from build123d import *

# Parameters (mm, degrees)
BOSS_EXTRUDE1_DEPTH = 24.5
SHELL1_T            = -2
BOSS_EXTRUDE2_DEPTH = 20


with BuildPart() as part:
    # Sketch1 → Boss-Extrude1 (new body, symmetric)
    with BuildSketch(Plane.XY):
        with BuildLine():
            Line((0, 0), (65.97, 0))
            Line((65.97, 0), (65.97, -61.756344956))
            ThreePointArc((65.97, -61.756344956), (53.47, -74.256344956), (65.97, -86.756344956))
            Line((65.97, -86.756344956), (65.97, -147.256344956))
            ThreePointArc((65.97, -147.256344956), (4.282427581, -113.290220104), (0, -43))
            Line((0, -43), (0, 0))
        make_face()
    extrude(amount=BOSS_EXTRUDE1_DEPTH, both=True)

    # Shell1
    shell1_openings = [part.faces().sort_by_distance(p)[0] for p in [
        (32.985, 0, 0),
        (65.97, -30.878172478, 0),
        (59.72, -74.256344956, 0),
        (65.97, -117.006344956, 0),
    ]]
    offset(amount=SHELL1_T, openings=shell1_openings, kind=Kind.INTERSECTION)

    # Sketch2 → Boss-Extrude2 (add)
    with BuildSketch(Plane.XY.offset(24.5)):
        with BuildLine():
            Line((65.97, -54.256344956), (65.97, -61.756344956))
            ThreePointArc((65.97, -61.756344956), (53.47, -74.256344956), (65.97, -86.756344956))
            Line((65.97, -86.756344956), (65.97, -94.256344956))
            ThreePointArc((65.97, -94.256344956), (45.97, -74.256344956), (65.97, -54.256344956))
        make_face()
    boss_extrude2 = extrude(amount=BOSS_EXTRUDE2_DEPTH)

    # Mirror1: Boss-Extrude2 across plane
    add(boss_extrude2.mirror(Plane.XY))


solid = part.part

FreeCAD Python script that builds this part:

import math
import FreeCAD as App
import Part
import Sketcher

V = App.Vector
Q = App.Units.Quantity


def faces_at(feature, points):
    """Names of the faces that lie closest to the given points."""
    faces = feature.Shape.Faces
    near = lambda p: min(range(len(faces)), key=lambda i: faces[i].distToShape(Part.Vertex(*p))[0])
    return sorted({f"Face{near(p) + 1}" for p in points})

doc = App.newDocument("Part")
params = doc.addObject("Spreadsheet::Sheet", "Params")
for row, (alias, value) in enumerate([
    ("sketch1_radius", "73 mm"),
    ("sketch1_radius2", "12.5 mm"),
    ("sketch1_height", "43 mm"),
    ("sketch1_width", "65.97 mm"),
    ("pad1_length", "49 mm"),
    ("thickness_wall", "2 mm"),
    ("sketch2_radius", "20 mm"),
    ("sketch2_radius2", "12.5 mm"),
    ("pad2_length", "20 mm"),
], start=1):
    params.set(f"A{row}", alias)
    params.set(f"B{row}", "=" + value)
    params.setAlias(f"B{row}", alias)

body = doc.addObject("PartDesign::Body", "Body")

# Sketch on XY plane
sketch1 = body.newObject("Sketcher::SketchObject", "Sketch")
sketch1.AttachmentSupport = (doc.getObject("XY_Plane"), [""])
sketch1.MapMode = "FlatFace"
sketch1.addGeometry(Part.LineSegment(V(66, 0, 0), V(0, 0, 0)), False)
sketch1.addGeometry(Part.LineSegment(V(0, 0, 0), V(0, -43, 0)), False)
sketch1.addGeometry(Part.ArcOfCircle(Part.Circle(V(66, -74, 0), V(0, 0, 1), 73), math.radians(155), math.radians(270)), False)
sketch1.addGeometry(Part.LineSegment(V(66, -147, 0), V(66, -87, 0)), False)
sketch1.addGeometry(Part.ArcOfCircle(Part.Circle(V(66, -74, 0), V(0, 0, 1), 12), math.radians(90), math.radians(270)), False)
sketch1.addGeometry(Part.LineSegment(V(66, -62, 0), V(66, 0, 0)), False)
sketch1.addConstraint(Sketcher.Constraint("Coincident", 0, 2, 1, 1))
sketch1.addConstraint(Sketcher.Constraint("Coincident", 1, 2, 2, 1))
sketch1.addConstraint(Sketcher.Constraint("Coincident", 2, 2, 3, 1))
sketch1.addConstraint(Sketcher.Constraint("Coincident", 3, 2, 4, 2))
sketch1.addConstraint(Sketcher.Constraint("Coincident", 4, 1, 5, 1))
sketch1.addConstraint(Sketcher.Constraint("Coincident", 5, 2, 0, 1))
sketch1.addConstraint(Sketcher.Constraint("Horizontal", 0))
sketch1.addConstraint(Sketcher.Constraint("Vertical", 1))
sketch1.addConstraint(Sketcher.Constraint("Vertical", 3))
sketch1.addConstraint(Sketcher.Constraint("Vertical", 5))
sketch1.addConstraint(Sketcher.Constraint("Coincident", 0, 2, -1, 1))
sketch1.addConstraint(Sketcher.Constraint("Coincident", 4, 3, 2, 3))
sketch1.addConstraint(Sketcher.Constraint("Vertical", 4, 3, 2, 2))
sketch1.addConstraint(Sketcher.Constraint("Vertical", 3, 2, 4, 1))
sketch1.addConstraint(Sketcher.Constraint("Radius", 2, Q("73 mm")))
sketch1.addConstraint(Sketcher.Constraint("Radius", 4, Q("12.5 mm")))
sketch1.addConstraint(Sketcher.Constraint("DistanceY", 1, 2, 1, 1, Q("43 mm")))
sketch1.addConstraint(Sketcher.Constraint("DistanceX", 0, 2, 0, 1, Q("65.97 mm")))
sketch1.setExpression("Constraints[14]", "Params.sketch1_radius")
sketch1.setExpression("Constraints[15]", "Params.sketch1_radius2")
sketch1.setExpression("Constraints[16]", "Params.sketch1_height")
sketch1.setExpression("Constraints[17]", "Params.sketch1_width")
pad1 = body.newObject("PartDesign::Pad", "Pad")
pad1.Profile = sketch1
pad1.setExpression("Length", "Params.pad1_length")
pad1.Midplane = True
doc.recompute()

thickness = body.newObject("PartDesign::Thickness", "Thickness")
thickness.Base = (pad1, faces_at(pad1, [
    (32.985, 0, 0),
    (65.97, -30.878, 0),
    (53.47, -74.256, 0),
    (65.97, -117.006, 0),
]))
thickness.setExpression("Value", "Params.thickness_wall")
thickness.Reversed = True
thickness.Join = "Intersection"

# Sketch on XY plane
sketch2 = body.newObject("Sketcher::SketchObject", "Sketch001")
sketch2.AttachmentSupport = (doc.getObject("XY_Plane"), [""])
sketch2.MapMode = "FlatFace"
sketch2.AttachmentOffset = App.Placement(V(0, 0, 24.5), App.Rotation())
sketch2.addGeometry(Part.LineSegment(V(66, -62, 0), V(66, -54, 0)), False)
sketch2.addGeometry(Part.ArcOfCircle(Part.Circle(V(66, -74, 0), V(0, 0, 1), 20), math.radians(90), math.radians(270)), False)
sketch2.addGeometry(Part.LineSegment(V(66, -94, 0), V(66, -87, 0)), False)
sketch2.addGeometry(Part.ArcOfCircle(Part.Circle(V(66, -74, 0), V(0, 0, 1), 12), math.radians(90), math.radians(270)), False)
sketch2.addConstraint(Sketcher.Constraint("Coincident", 0, 2, 1, 1))
sketch2.addConstraint(Sketcher.Constraint("Coincident", 1, 2, 2, 1))
sketch2.addConstraint(Sketcher.Constraint("Coincident", 2, 2, 3, 2))
sketch2.addConstraint(Sketcher.Constraint("Coincident", 3, 1, 0, 1))
sketch2.addConstraint(Sketcher.Constraint("Vertical", 0))
sketch2.addConstraint(Sketcher.Constraint("Vertical", 2))
sketch2.addConstraint(Sketcher.Constraint("Coincident", 3, 3, 1, 3))
sketch2.addConstraint(Sketcher.Constraint("Vertical", 3, 3, 0, 2))
sketch2.addConstraint(Sketcher.Constraint("Vertical", 0, 2, 1, 2))
sketch2.addConstraint(Sketcher.Constraint("Radius", 1, Q("20 mm")))
sketch2.addConstraint(Sketcher.Constraint("Radius", 3, Q("12.5 mm")))
sketch2.addConstraint(Sketcher.Constraint("DistanceX", -1, 1, 1, 3, Q("65.97 mm")))
sketch2.addConstraint(Sketcher.Constraint("DistanceY", 1, 3, -1, 1, Q("74.256345 mm")))
sketch2.setExpression("Constraints[9]", "Params.sketch2_radius")
sketch2.setExpression("Constraints[10]", "Params.sketch2_radius2")
pad2 = body.newObject("PartDesign::Pad", "Pad001")
pad2.Profile = sketch2
pad2.setExpression("Length", "Params.pad2_length")
doc.recompute()

mirrored = body.newObject("PartDesign::Mirrored", "Mirrored")
mirrored.Originals = [pad2]
mirrored.MirrorPlane = (doc.getObject("XY_Plane"), [""])
body.Tip = mirrored

doc.recompute()
